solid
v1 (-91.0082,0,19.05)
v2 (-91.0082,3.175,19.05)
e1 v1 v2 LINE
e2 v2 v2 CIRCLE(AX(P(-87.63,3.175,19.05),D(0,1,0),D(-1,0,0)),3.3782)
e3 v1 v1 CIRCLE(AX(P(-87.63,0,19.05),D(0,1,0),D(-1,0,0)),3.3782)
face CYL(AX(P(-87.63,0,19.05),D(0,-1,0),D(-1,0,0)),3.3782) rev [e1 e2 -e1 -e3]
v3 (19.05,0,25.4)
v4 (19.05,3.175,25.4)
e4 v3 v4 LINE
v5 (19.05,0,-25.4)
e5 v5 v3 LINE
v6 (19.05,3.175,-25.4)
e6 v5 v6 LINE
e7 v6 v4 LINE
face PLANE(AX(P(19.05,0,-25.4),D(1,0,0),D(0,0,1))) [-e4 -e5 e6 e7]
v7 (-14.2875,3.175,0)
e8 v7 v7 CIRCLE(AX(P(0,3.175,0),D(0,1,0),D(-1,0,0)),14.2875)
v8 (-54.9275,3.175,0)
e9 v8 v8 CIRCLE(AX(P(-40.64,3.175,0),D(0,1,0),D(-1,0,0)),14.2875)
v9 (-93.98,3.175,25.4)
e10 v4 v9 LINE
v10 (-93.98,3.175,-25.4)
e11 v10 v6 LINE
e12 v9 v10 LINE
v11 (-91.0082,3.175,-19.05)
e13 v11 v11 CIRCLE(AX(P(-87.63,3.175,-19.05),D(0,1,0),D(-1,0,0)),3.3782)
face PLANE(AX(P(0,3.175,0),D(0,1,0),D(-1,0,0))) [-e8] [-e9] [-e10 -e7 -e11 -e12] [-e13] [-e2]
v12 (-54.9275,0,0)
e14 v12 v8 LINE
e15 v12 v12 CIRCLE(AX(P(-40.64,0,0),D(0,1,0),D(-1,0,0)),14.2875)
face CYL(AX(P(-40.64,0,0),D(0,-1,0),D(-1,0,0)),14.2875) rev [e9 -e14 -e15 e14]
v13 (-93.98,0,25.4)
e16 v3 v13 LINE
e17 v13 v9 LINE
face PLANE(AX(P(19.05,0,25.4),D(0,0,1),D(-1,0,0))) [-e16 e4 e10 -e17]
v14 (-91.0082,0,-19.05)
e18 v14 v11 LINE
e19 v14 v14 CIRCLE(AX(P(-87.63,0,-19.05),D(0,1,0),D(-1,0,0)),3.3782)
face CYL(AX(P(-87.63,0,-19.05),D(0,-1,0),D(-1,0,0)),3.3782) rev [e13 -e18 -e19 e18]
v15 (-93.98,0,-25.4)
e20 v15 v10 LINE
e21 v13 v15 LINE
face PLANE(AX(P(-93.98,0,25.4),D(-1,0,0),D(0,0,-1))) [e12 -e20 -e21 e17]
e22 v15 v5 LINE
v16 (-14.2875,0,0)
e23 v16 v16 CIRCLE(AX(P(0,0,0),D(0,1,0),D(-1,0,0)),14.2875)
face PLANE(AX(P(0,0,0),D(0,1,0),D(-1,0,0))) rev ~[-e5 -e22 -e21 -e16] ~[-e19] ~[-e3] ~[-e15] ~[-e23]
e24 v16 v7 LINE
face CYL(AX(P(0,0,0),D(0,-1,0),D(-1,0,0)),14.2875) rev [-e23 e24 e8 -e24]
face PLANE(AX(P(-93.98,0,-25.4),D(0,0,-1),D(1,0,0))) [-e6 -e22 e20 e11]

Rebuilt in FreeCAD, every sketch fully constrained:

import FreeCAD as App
import Part
import Sketcher
Q = App.Units.Quantity

doc = App.newDocument("Part")
params = doc.addObject("Spreadsheet::Sheet", "Params")
for row, (alias, value) in enumerate([
    ("sketch1_diameter", "1.125 in"),
    ("sketch1_diameter2", "0.266 in"),
    ("sketch1_height", "2 in"),
    ("pad1_length", "0.125 in"),
], start=1):
    params.set(f"A{row}", alias)
    params.set(f"B{row}", "=" + value)
    params.setAlias(f"B{row}", alias)

body = doc.addObject("PartDesign::Body", "Body")

sketch1 = doc.addObject("Sketcher::SketchObject", "Sketch")
body.addObject(sketch1)
sketch1.AttachmentSupport = (doc.XZ_Plane, [""])
sketch1.MapMode = "FlatFace"
sketch1.addGeometry([
    Part.LineSegment(App.Vector(-93.98, 25.4, 0), App.Vector(19.05, 25.4, 0)),
    Part.LineSegment(App.Vector(19.05, 25.4, 0), App.Vector(19.05, -25.4, 0)),
    Part.LineSegment(App.Vector(19.05, -25.4, 0), App.Vector(-93.98, -25.4, 0)),
    Part.LineSegment(App.Vector(-93.98, -25.4, 0), App.Vector(-93.98, 25.4, 0)),
    Part.Circle(App.Vector(0, 0, 0), App.Vector(0, 0, 1), 14.2875),
    Part.Circle(App.Vector(-87.63, -19.05, 0), App.Vector(0, 0, 1), 3.3782),
    Part.Circle(App.Vector(-40.64, 0, 0), App.Vector(0, 0, 1), 14.2875),
    Part.Circle(App.Vector(-87.63, 19.05, 0), App.Vector(0, 0, 1), 3.3782),
], False)
sketch1.addConstraint([
    Sketcher.Constraint("Coincident", 0, 2, 1, 1),
    Sketcher.Constraint("Coincident", 1, 2, 2, 1),
    Sketcher.Constraint("Coincident", 2, 2, 3, 1),
    Sketcher.Constraint("Coincident", 3, 2, 0, 1),
    Sketcher.Constraint("Horizontal", 0),
    Sketcher.Constraint("Vertical", 1),
    Sketcher.Constraint("Horizontal", 2),
    Sketcher.Constraint("Vertical", 3),
    Sketcher.Constraint("Coincident", 4, 3, -1, 1),
    Sketcher.Constraint("Equal", 4, 6),
    Sketcher.Constraint("Equal", 5, 7),
    Sketcher.Constraint("Symmetric", 5, 3, 7, 3, -1),
    Sketcher.Constraint("PointOnObject", 6, 3, -1),
    Sketcher.Constraint("Diameter", 4, Q("1.125 in")),
    Sketcher.Constraint("Diameter", 5, Q("0.266 in")),
    Sketcher.Constraint("DistanceX", 6, 3, -1, 1, Q("1.6 in")),
    Sketcher.Constraint("DistanceY", 1, 2, 1, 1, Q("2 in")),
    Sketcher.Constraint("DistanceX", 5, 3, -1, 1, Q("3.45 in")),
    Sketcher.Constraint("DistanceY", 5, 3, -1, 1, Q("0.75 in")),
    Sketcher.Constraint("DistanceX", -1, 1, 0, 2, Q("0.75 in")),
    Sketcher.Constraint("DistanceY", 7, 3, 0, 2, Q("0.25 in")),
    Sketcher.Constraint("DistanceX", 2, 2, 5, 3, Q("0.25 in")),
])
sketch1.setExpression("Constraints[13]", "Params.sketch1_diameter")
sketch1.setExpression("Constraints[14]", "Params.sketch1_diameter2")
sketch1.setExpression("Constraints[16]", "Params.sketch1_height")
pad1 = doc.addObject("PartDesign::Pad", "Pad")
body.addObject(pad1)
pad1.Profile = sketch1
pad1.setExpression("Length", "Params.pad1_length")
pad1.Reversed = True

doc.recompute()
